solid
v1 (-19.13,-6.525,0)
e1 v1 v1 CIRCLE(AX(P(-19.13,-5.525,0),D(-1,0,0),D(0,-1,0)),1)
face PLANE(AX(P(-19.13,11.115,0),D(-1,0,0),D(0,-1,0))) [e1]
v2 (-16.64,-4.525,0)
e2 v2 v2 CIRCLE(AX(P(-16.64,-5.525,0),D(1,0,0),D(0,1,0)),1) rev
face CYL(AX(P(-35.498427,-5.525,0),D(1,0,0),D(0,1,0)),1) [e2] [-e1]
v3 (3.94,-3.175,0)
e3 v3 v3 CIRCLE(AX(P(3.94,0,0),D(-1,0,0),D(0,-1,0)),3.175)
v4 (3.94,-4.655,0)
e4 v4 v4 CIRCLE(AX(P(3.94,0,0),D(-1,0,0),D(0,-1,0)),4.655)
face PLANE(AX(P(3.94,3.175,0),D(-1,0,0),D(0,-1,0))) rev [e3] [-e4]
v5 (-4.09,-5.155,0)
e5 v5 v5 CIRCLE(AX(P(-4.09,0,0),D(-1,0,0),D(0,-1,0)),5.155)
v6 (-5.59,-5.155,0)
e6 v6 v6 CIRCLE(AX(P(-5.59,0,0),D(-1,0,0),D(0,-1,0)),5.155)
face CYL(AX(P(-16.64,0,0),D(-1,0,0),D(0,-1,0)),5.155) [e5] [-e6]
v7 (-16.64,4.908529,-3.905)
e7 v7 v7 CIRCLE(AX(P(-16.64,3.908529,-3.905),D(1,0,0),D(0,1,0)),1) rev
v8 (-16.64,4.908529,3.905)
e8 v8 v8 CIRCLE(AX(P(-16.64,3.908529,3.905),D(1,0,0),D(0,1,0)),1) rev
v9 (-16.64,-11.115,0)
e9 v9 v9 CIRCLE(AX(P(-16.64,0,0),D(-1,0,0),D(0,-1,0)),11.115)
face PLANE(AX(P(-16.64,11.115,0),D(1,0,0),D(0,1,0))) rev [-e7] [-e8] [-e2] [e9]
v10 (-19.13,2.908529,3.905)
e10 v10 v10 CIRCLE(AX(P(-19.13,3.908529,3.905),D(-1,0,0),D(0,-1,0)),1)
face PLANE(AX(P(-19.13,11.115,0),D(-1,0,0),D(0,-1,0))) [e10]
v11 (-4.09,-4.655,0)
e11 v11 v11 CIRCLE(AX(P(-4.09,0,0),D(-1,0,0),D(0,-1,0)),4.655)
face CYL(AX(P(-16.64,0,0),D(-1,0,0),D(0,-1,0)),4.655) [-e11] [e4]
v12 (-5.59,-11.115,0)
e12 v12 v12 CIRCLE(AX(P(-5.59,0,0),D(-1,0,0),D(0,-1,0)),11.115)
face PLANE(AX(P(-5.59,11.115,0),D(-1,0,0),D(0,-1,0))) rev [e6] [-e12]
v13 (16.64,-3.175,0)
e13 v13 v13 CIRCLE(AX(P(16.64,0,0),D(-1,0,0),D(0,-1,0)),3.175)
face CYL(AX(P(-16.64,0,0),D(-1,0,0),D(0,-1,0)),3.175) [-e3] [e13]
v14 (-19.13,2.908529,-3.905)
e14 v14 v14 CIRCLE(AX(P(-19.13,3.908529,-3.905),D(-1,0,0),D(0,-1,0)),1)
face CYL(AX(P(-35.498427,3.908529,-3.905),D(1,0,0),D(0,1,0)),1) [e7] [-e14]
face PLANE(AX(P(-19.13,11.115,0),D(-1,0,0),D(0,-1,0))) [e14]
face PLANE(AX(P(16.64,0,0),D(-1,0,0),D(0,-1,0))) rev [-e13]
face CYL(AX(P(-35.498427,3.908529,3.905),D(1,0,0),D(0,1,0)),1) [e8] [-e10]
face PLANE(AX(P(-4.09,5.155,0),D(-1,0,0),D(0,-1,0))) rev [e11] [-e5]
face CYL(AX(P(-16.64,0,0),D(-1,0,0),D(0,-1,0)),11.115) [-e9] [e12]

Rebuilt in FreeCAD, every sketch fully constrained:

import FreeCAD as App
import Part
import Sketcher

V = App.Vector
Q = App.Units.Quantity


def add_polygon(sketch, points):
    """Adds a closed chain of lines whose ends are joined by coincident constraints."""
    first, n = sketch.GeometryCount, len(points)
    for a, b in zip(points, points[1:] + points[:1]):
        sketch.addGeometry(Part.LineSegment(App.Vector(*a, 0), App.Vector(*b, 0)), False)
    for i in range(n):
        sketch.addConstraint(Sketcher.Constraint("Coincident", first + i, 2, first + (i + 1) % n, 1))

doc = App.newDocument("Part")
body = doc.addObject("PartDesign::Body", "Body")

# Sketch on XY plane
sketch1 = body.newObject("Sketcher::SketchObject", "Sketch")
sketch1.AttachmentSupport = (doc.getObject("XY_Plane"), [""])
sketch1.MapMode = "FlatFace"
add_polygon(sketch1, [(-16.6, 0), (16.6, 0), (16.6, 3.2), (3.9, 3.2), (3.9, 4.7), (-4.1, 4.7), (-4.1, 5.2), (-5.6, 5.2), (-5.6, 11.1), (-16.6, 11.1)])  # lines 0-9
sketch1.addConstraint(Sketcher.Constraint("Horizontal", 0))
sketch1.addConstraint(Sketcher.Constraint("Vertical", 1))
sketch1.addConstraint(Sketcher.Constraint("Horizontal", 2))
sketch1.addConstraint(Sketcher.Constraint("Vertical", 3))
sketch1.addConstraint(Sketcher.Constraint("Horizontal", 4))
sketch1.addConstraint(Sketcher.Constraint("Vertical", 5))
sketch1.addConstraint(Sketcher.Constraint("Horizontal", 6))
sketch1.addConstraint(Sketcher.Constraint("Vertical", 7))
sketch1.addConstraint(Sketcher.Constraint("Horizontal", 8))
sketch1.addConstraint(Sketcher.Constraint("Vertical", 9))
sketch1.addConstraint(Sketcher.Constraint("Symmetric", 0, 2, 9, 2, -1, 1))
sketch1.addConstraint(Sketcher.Constraint("DistanceX", 2, 2, 2, 1, Q("12.7 mm")))
sketch1.addConstraint(Sketcher.Constraint("DistanceX", 6, 2, 6, 1, Q("1.5 mm")))
sketch1.addConstraint(Sketcher.Constraint("DistanceY", 5, 1, 5, 2, Q("0.5 mm")))
sketch1.addConstraint(Sketcher.Constraint("DistanceX", 0, 1, 0, 2, Q("33.28 mm")))
sketch1.addConstraint(Sketcher.Constraint("DistanceX", 4, 2, 4, 1, Q("8.03 mm")))
sketch1.addConstraint(Sketcher.Constraint("DistanceY", 3, 1, 3, 2, Q("1.48 mm")))
sketch1.addConstraint(Sketcher.Constraint("DistanceY", 7, 1, 7, 2, Q("5.96 mm")))
sketch1.addConstraint(Sketcher.Constraint("DistanceY", 1, 1, 1, 2, Q("3.175 mm")))
revolution = body.newObject("PartDesign::Revolution", "Revolution")
revolution.Profile = sketch1
revolution.ReferenceAxis = (sketch1, ["H_Axis"])
revolution.Angle = 360

# Sketch on YZ plane
sketch2 = body.newObject("Sketcher::SketchObject", "Sketch001")
sketch2.AttachmentSupport = (doc.getObject("YZ_Plane"), [""])
sketch2.MapMode = "FlatFace"
sketch2.AttachmentOffset = App.Placement(V(0, 0, -16.64), App.Rotation())
sketch2.addGeometry(Part.Circle(V(3.9, -3.9, 0), V(0, 0, 1), 1), False)
sketch2.addGeometry(Part.Circle(V(3.9, 3.9, 0), V(0, 0, 1), 1), False)
sketch2.addGeometry(Part.Circle(V(-5.5, 0, 0), V(0, 0, 1), 1), False)
sketch2.addConstraint(Sketcher.Constraint("Equal", 0, 1))
sketch2.addConstraint(Sketcher.Constraint("Equal", 1, 2))
sketch2.addConstraint(Sketcher.Constraint("Symmetric", 0, 3, 1, 3, -1))
sketch2.addConstraint(Sketcher.Constraint("PointOnObject", 2, 3, -1))
sketch2.addConstraint(Sketcher.Constraint("Diameter", 0, Q("2 mm")))
sketch2.addConstraint(Sketcher.Constraint("DistanceY", 0, 3, 1, 3, Q("7.81 mm")))
sketch2.addConstraint(Sketcher.Constraint("DistanceX", 2, 3, -1, 1, Q("5.525 mm")))
sketch2.addConstraint(Sketcher.Constraint("DistanceX", -1, 1, 0, 3, Q("3.908529 mm")))
pad1 = body.newObject("PartDesign::Pad", "Pad")
pad1.Profile = sketch2
pad1.Length = 2.49
pad1.Reversed = True

doc.recompute()
